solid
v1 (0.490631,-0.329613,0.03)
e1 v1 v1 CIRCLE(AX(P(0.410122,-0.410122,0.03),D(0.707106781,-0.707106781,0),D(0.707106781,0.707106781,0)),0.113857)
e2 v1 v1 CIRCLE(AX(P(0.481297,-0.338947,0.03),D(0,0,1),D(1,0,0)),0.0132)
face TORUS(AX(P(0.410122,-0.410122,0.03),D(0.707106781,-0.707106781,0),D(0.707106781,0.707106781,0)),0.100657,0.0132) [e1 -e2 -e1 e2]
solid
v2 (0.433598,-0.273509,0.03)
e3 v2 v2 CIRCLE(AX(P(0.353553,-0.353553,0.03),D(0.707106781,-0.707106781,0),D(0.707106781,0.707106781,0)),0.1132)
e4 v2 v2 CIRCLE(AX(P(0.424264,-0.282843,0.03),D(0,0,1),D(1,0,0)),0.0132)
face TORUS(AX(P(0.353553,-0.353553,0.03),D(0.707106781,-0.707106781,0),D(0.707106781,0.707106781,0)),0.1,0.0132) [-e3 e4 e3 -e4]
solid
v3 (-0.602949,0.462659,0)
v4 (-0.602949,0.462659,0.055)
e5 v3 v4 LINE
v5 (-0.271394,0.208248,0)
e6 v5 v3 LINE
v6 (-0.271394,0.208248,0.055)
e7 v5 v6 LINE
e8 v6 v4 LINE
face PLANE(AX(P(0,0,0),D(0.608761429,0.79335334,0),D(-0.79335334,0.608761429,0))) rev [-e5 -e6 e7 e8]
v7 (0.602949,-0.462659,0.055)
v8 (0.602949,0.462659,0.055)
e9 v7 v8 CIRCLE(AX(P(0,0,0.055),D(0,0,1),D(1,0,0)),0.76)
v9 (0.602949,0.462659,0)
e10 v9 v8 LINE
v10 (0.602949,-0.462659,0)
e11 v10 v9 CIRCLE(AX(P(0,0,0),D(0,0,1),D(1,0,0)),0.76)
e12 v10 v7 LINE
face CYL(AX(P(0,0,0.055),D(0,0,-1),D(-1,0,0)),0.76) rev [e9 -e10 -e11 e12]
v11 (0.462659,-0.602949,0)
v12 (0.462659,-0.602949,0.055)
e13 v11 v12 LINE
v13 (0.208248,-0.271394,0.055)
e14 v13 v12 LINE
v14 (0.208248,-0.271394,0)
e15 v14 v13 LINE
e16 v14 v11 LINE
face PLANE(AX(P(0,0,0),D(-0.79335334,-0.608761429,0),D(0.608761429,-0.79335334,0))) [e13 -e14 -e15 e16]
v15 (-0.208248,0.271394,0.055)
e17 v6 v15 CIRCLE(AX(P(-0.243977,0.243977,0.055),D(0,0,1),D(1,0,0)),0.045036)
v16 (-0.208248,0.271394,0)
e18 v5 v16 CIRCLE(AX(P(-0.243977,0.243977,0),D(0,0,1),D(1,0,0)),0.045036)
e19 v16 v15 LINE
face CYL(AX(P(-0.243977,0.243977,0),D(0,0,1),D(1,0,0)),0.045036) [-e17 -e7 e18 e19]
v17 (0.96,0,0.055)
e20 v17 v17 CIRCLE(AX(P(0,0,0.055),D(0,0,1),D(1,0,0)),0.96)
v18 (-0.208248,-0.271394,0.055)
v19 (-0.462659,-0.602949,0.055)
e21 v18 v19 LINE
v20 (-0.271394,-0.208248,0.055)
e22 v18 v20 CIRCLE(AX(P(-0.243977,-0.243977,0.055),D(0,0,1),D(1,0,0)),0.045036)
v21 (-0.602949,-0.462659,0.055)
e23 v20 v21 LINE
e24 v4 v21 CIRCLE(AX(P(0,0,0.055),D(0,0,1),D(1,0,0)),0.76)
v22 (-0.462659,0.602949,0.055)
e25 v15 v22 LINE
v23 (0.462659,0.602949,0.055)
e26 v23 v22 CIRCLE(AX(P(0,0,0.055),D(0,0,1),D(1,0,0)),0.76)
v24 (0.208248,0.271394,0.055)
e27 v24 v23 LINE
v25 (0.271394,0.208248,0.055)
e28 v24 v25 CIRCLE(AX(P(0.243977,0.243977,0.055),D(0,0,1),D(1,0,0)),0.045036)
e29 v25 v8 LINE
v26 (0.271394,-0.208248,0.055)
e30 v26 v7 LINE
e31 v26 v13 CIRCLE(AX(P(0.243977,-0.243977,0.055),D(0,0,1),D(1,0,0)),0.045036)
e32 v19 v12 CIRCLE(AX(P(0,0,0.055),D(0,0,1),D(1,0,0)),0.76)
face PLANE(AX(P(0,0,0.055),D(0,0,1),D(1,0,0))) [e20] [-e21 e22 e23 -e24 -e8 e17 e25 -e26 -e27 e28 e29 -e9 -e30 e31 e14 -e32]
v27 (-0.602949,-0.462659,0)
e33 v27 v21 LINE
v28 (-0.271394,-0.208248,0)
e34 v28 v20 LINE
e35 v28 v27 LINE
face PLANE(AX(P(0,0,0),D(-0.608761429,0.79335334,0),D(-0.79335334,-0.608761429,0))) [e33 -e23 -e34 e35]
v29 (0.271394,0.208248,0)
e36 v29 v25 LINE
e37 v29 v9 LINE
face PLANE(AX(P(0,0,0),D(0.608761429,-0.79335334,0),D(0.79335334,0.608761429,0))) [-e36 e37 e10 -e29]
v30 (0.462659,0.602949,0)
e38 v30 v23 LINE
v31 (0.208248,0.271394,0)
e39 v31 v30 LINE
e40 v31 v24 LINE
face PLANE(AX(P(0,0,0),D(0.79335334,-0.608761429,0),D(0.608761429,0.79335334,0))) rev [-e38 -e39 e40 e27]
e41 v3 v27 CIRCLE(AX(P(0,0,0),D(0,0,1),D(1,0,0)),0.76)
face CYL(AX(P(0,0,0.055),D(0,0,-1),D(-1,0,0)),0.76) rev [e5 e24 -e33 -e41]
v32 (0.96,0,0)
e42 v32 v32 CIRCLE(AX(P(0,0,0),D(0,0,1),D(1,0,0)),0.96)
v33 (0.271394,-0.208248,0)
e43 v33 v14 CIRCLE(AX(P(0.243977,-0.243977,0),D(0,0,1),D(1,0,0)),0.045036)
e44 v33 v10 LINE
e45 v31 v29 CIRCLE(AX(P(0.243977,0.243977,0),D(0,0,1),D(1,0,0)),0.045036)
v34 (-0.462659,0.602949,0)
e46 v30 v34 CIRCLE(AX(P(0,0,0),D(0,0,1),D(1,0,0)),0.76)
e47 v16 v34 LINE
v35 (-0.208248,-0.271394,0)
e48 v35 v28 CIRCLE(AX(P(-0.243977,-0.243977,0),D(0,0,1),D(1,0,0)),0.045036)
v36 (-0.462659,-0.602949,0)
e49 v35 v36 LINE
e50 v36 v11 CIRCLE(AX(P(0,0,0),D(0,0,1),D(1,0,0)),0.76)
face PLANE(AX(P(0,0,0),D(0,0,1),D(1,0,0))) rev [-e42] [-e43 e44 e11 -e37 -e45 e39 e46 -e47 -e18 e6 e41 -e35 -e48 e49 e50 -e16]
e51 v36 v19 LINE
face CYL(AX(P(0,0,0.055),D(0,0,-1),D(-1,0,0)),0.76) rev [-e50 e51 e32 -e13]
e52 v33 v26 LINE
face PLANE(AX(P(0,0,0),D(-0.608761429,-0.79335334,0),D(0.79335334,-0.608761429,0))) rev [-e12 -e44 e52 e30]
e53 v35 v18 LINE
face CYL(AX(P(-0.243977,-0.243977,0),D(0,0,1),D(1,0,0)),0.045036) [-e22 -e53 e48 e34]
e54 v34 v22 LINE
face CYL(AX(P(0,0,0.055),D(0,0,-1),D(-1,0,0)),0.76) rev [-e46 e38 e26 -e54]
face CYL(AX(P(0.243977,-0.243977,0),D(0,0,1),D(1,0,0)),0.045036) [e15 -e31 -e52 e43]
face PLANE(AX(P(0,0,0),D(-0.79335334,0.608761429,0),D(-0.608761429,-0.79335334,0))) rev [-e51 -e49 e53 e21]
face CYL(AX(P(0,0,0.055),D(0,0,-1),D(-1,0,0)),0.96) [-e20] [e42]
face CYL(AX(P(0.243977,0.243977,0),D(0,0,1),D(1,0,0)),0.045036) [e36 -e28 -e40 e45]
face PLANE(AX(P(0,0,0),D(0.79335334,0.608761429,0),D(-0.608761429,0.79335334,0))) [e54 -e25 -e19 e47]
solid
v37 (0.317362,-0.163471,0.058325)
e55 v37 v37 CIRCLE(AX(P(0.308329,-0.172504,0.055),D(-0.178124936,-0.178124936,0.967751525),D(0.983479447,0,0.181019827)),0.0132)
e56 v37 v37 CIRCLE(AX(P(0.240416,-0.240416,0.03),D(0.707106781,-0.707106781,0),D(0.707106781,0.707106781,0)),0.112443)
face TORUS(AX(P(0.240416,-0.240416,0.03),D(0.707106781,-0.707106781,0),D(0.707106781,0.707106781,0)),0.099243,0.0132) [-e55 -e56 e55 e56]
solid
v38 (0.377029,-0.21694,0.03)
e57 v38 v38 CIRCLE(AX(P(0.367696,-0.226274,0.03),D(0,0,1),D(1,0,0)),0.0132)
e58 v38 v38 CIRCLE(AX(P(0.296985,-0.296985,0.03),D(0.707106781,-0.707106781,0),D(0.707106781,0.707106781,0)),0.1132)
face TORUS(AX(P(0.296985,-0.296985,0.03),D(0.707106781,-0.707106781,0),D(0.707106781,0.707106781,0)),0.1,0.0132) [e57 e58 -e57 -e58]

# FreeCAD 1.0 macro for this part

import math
import FreeCAD as App
import Part
import Sketcher
Q = App.Units.Quantity

doc = App.newDocument("Part")
body = doc.addObject("PartDesign::Body", "Body")

# Sketch on XY plane
sketch1 = doc.addObject("Sketcher::SketchObject", "Sketch")
body.addObject(sketch1)
sketch1.AttachmentSupport = (doc.XY_Plane, [""])
sketch1.MapMode = "FlatFace"
sketch1.addGeometry(Part.Circle(App.Vector(0, 0, 0), App.Vector(0, 0, 1), 1), False)
sketch1.addGeometry(Part.Circle(App.Vector(0, 0, 0), App.Vector(0, 0, 1), 0.8), False)
sketch1.addConstraint(Sketcher.Constraint("Coincident", 0, 3, -1, 1))
sketch1.addConstraint(Sketcher.Constraint("Coincident", 1, 3, -1, 1))
sketch1.addConstraint(Sketcher.Constraint("Diameter", 0, 1.92))
sketch1.addConstraint(Sketcher.Constraint("Diameter", 1, 1.52))
pad1 = doc.addObject("PartDesign::Pad", "Pad")
body.addObject(pad1)
pad1.Profile = sketch1
pad1.Length = 0.055

# Sketch on XY plane
sketch2 = doc.addObject("Sketcher::SketchObject", "Sketch001")
body.addObject(sketch2)
sketch2.AttachmentSupport = (doc.XY_Plane, [""])
sketch2.MapMode = "FlatFace"
sketch2.addGeometry(Part.LineSegment(App.Vector(-0.208, 0.271, 0), App.Vector(-0.463, 0.603, 0)), False)
sketch2.addGeometry(Part.ArcOfCircle(Part.Circle(App.Vector(0, 0, 0), App.Vector(0, 0, 1), 0.76), math.radians(127.5), math.radians(142.5)), False)
sketch2.addGeometry(Part.LineSegment(App.Vector(-0.603, 0.463, 0), App.Vector(-0.271, 0.208, 0)), False)
sketch2.addGeometry(Part.ArcOfCircle(Part.Circle(App.Vector(-0.244, 0.244, 0), App.Vector(0, 0, 1), 0.045), math.radians(-128), math.radians(-45)), False)
sketch2.addGeometry(Part.ArcOfCircle(Part.Circle(App.Vector(-0.244, 0.244, 0), App.Vector(0, 0, 1), 0.045), math.radians(-45), math.radians(38)), False)
sketch2.addGeometry(Part.ArcOfCircle(Part.Circle(App.Vector(0.244, 0.244, 0), App.Vector(0, 0, 1), 0.045), math.radians(142), math.radians(225)), False)
sketch2.addGeometry(Part.ArcOfCircle(Part.Circle(App.Vector(0.244, 0.244, 0), App.Vector(0, 0, 1), 0.045), math.radians(-135), math.radians(-52)), False)
sketch2.addGeometry(Part.LineSegment(App.Vector(0.271, 0.208, 0), App.Vector(0.603, 0.463, 0)), False)
sketch2.addGeometry(Part.ArcOfCircle(Part.Circle(App.Vector(0, 0, 0), App.Vector(0, 0, 1), 0.76), math.radians(37.5), math.radians(52.5)), False)
sketch2.addGeometry(Part.LineSegment(App.Vector(0.463, 0.603, 0), App.Vector(0.208, 0.271, 0)), False)
sketch2.addGeometry(Part.ArcOfCircle(Part.Circle(App.Vector(0.244, -0.244, 0), App.Vector(0, 0, 1), 0.045), math.radians(52), math.radians(135)), False)
sketch2.addGeometry(Part.ArcOfCircle(Part.Circle(App.Vector(0.244, -0.244, 0), App.Vector(0, 0, 1), 0.045), math.radians(135), math.radians(218)), False)
sketch2.addGeometry(Part.LineSegment(App.Vector(0.208, -0.271, 0), App.Vector(0.463, -0.603, 0)), False)
sketch2.addGeometry(Part.ArcOfCircle(Part.Circle(App.Vector(0, 0, 0), App.Vector(0, 0, 1), 0.76), math.radians(-52.5), math.radians(-37.5)), False)
sketch2.addGeometry(Part.LineSegment(App.Vector(0.603, -0.463, 0), App.Vector(0.271, -0.208, 0)), False)
sketch2.addGeometry(Part.ArcOfCircle(Part.Circle(App.Vector(-0.244, -0.244, 0), App.Vector(0, 0, 1), 0.045), math.radians(-38), math.radians(45)), False)
sketch2.addGeometry(Part.ArcOfCircle(Part.Circle(App.Vector(-0.244, -0.244, 0), App.Vector(0, 0, 1), 0.045), math.radians(45), math.radians(128)), False)
sketch2.addGeometry(Part.LineSegment(App.Vector(-0.271, -0.208, 0), App.Vector(-0.603, -0.463, 0)), False)
sketch2.addGeometry(Part.ArcOfCircle(Part.Circle(App.Vector(0, 0, 0), App.Vector(0, 0, 1), 0.76), math.radians(-142.5), math.radians(-127.5)), False)
sketch2.addGeometry(Part.LineSegment(App.Vector(-0.463, -0.603, 0), App.Vector(-0.208, -0.271, 0)), False)
sketch2.addConstraint(Sketcher.Constraint("Coincident", 0, 2, 1, 1))
sketch2.addConstraint(Sketcher.Constraint("Coincident", 1, 2, 2, 1))
sketch2.addConstraint(Sketcher.Constraint("Tangent", 2, 2, 3, 1))
sketch2.addConstraint(Sketcher.Constraint("Tangent", 3, 2, 4, 1))
sketch2.addConstraint(Sketcher.Constraint("Tangent", 4, 2, 0, 1))
sketch2.addConstraint(Sketcher.Constraint("Tangent", 5, 2, 6, 1))
sketch2.addConstraint(Sketcher.Constraint("Tangent", 6, 2, 7, 1))
sketch2.addConstraint(Sketcher.Constraint("Coincident", 7, 2, 8, 1))
sketch2.addConstraint(Sketcher.Constraint("Coincident", 8, 2, 9, 1))
sketch2.addConstraint(Sketcher.Constraint("Tangent", 9, 2, 5, 1))
sketch2.addConstraint(Sketcher.Constraint("Tangent", 10, 2, 11, 1))
sketch2.addConstraint(Sketcher.Constraint("Tangent", 11, 2, 12, 1))
sketch2.addConstraint(Sketcher.Constraint("Coincident", 12, 2, 13, 1))
sketch2.addConstraint(Sketcher.Constraint("Coincident", 13, 2, 14, 1))
sketch2.addConstraint(Sketcher.Constraint("Tangent", 14, 2, 10, 1))
sketch2.addConstraint(Sketcher.Constraint("Tangent", 15, 2, 16, 1))
sketch2.addConstraint(Sketcher.Constraint("Tangent", 16, 2, 17, 1))
sketch2.addConstraint(Sketcher.Constraint("Coincident", 17, 2, 18, 1))
sketch2.addConstraint(Sketcher.Constraint("Coincident", 18, 2, 19, 1))
sketch2.addConstraint(Sketcher.Constraint("Tangent", 19, 2, 15, 1))
sketch2.addConstraint(Sketcher.Constraint("Coincident", 1, 3, -1, 1))
sketch2.addConstraint(Sketcher.Constraint("Coincident", 8, 3, -1, 1))
sketch2.addConstraint(Sketcher.Constraint("Coincident", 13, 3, -1, 1))
sketch2.addConstraint(Sketcher.Constraint("Coincident", 18, 3, -1, 1))
sketch2.addConstraint(Sketcher.Constraint("Equal", 3, 4))
sketch2.addConstraint(Sketcher.Constraint("Equal", 4, 5))
sketch2.addConstraint(Sketcher.Constraint("Equal", 5, 6))
sketch2.addConstraint(Sketcher.Constraint("Equal", 1, 8))
sketch2.addConstraint(Sketcher.Constraint("Equal", 6, 10))
sketch2.addConstraint(Sketcher.Constraint("Equal", 10, 11))
sketch2.addConstraint(Sketcher.Constraint("Equal", 8, 13))
sketch2.addConstraint(Sketcher.Constraint("Equal", 11, 15))
sketch2.addConstraint(Sketcher.Constraint("Equal", 15, 16))
sketch2.addConstraint(Sketcher.Constraint("Equal", 13, 18))
sketch2.addConstraint(Sketcher.Constraint("Symmetric", 3, 3, 10, 3, -1, 1))
sketch2.addConstraint(Sketcher.Constraint("Symmetric", 5, 3, 15, 3, -1, 1))
sketch2.addConstraint(Sketcher.Constraint("Symmetric", 3, 3, 5, 3, -2))
sketch2.addConstraint(Sketcher.Constraint("Perpendicular", 0, 7))
sketch2.addConstraint(Sketcher.Constraint("Perpendicular", 2, 9))
sketch2.addConstraint(Sketcher.Constraint("Perpendicular", 7, 12))
sketch2.addConstraint(Sketcher.Constraint("Perpendicular", 9, 14))
sketch2.addConstraint(Sketcher.Constraint("Perpendicular", 12, 17))
sketch2.addConstraint(Sketcher.Constraint("Perpendicular", 14, 19))
sketch2.addConstraint(Sketcher.Constraint("Horizontal", 3, 2, 5, 2))
sketch2.addConstraint(Sketcher.Constraint("Horizontal", 2, 2, 6, 2))
sketch2.addConstraint(Sketcher.Constraint("Horizontal", 10, 2, 15, 2))
sketch2.addConstraint(Sketcher.Constraint("Vertical", 5, 2, 10, 2))
sketch2.addConstraint(Sketcher.Constraint("Equal", 0, 2))
sketch2.addConstraint(Sketcher.Constraint("Radius", 1, 0.76))
sketch2.addConstraint(Sketcher.Constraint("Angle", 0, Q("127.5 deg")))
sketch2.addConstraint(Sketcher.Constraint("Radius", 3, 0.045036))
sketch2.addConstraint(Sketcher.Constraint("DistanceY", 6, 2, 8, 2, 0.394701))
sketch2.addConstraint(Sketcher.Constraint("DistanceX", 2, 2, 3, 2, 0.059262))
pad2 = doc.addObject("PartDesign::Pad", "Pad001")
body.addObject(pad2)
pad2.Profile = sketch2
pad2.Length = 0.055
body2 = doc.addObject("PartDesign::Body", "Body001")

# Sketch on XY plane
sketch3 = doc.addObject("Sketcher::SketchObject", "Sketch002")
body2.addObject(sketch3)
sketch3.AttachmentSupport = (doc.getObject("XY_Plane001"), [""])
sketch3.MapMode = "FlatFace"
sketch3.AttachmentOffset = App.Placement(App.Vector(0, 0, 0.03), App.Rotation())
sketch3.addGeometry(Part.Circle(App.Vector(0.424, -0.283, 0), App.Vector(0, 0, 1), 0.013), False)
sketch3.addConstraint(Sketcher.Constraint("Diameter", 0, 0.0264))
sketch3.addConstraint(Sketcher.Constraint("DistanceX", -1, 1, 0, 3, 0.424264))
sketch3.addConstraint(Sketcher.Constraint("DistanceY", 0, 3, -1, 1, 0.282843))

# Sketch on an angled plane
sketch4 = doc.addObject("Sketcher::SketchObject", "Sketch003")
body2.addObject(sketch4)
sketch4.Placement = App.Placement(App.Vector(0.353553, -0.353553, 0), App.Rotation(App.Vector(0.707106781, 0.707106781, 0), App.Vector(0, 0, 0.999999999), App.Vector(0.707106781, -0.707106781, 0), "ZXY"))
sketch4.addGeometry(Part.Circle(App.Vector(0, 0.03, 0), App.Vector(0, 0, 1), 0.1), False)
sketch4.addConstraint(Sketcher.Constraint("PointOnObject", 0, 3, -2))
sketch4.addConstraint(Sketcher.Constraint("Diameter", 0, 0.2))
sketch4.addConstraint(Sketcher.Constraint("DistanceY", -1, 1, 0, 3, 0.03))
doc.recompute()

additivepipe = doc.addObject("PartDesign::AdditivePipe", "AdditivePipe")
body2.addObject(additivepipe)
additivepipe.Profile = sketch3
additivepipe.Spine = (sketch4, ["Edge1"])
body3 = doc.addObject("PartDesign::Body", "Body002")

# Sketch on an angled plane
sketch5 = doc.addObject("Sketcher::SketchObject", "Sketch004")
body3.addObject(sketch5)
sketch5.Placement = App.Placement(App.Vector(0.308329, -0.172504, 0.055), App.Rotation(App.Vector(0.98400788, -0.032244145, 0.175182214), App.Vector(0, 0.983479447, 0.181019827), App.Vector(-0.178124936, -0.178124936, 0.967751525), "ZXY"))
sketch5.addGeometry(Part.Circle(App.Vector(0, 0, 0), App.Vector(0, 0, 1), 0.013), False)
sketch5.addConstraint(Sketcher.Constraint("Coincident", 0, 3, -1, 1))
sketch5.addConstraint(Sketcher.Constraint("Diameter", 0, 0.0264))

# Sketch on an angled plane
sketch6 = doc.addObject("Sketcher::SketchObject", "Sketch005")
body3.addObject(sketch6)
sketch6.Placement = App.Placement(App.Vector(0.240416, -0.240416, 0), App.Rotation(App.Vector(0.707106781, 0.707106781, 0), App.Vector(0, 0, 0.999999999), App.Vector(0.707106781, -0.707106781, 0), "ZXY"))
sketch6.addGeometry(Part.Circle(App.Vector(0, 0.03, 0), App.Vector(0, 0, 1), 0.1), False)
sketch6.addConstraint(Sketcher.Constraint("PointOnObject", 0, 3, -2))
sketch6.addConstraint(Sketcher.Constraint("Diameter", 0, 0.2))
sketch6.addConstraint(Sketcher.Constraint("DistanceY", -1, 1, 0, 3, 0.03))
doc.recompute()

additivepipe2 = doc.addObject("PartDesign::AdditivePipe", "AdditivePipe001")
body3.addObject(additivepipe2)
additivepipe2.Profile = sketch5
additivepipe2.Spine = (sketch6, ["Edge1"])
body4 = doc.addObject("PartDesign::Body", "Body003")

# Sketch on XY plane
sketch7 = doc.addObject("Sketcher::SketchObject", "Sketch006")
body4.addObject(sketch7)
sketch7.AttachmentSupport = (doc.getObject("XY_Plane003"), [""])
sketch7.MapMode = "FlatFace"
sketch7.AttachmentOffset = App.Placement(App.Vector(0, 0, 0.03), App.Rotation())
sketch7.addGeometry(Part.Circle(App.Vector(0.368, -0.226, 0), App.Vector(0, 0, 1), 0.013), False)
sketch7.addConstraint(Sketcher.Constraint("Diameter", 0, 0.0264))
sketch7.addConstraint(Sketcher.Constraint("DistanceX", -1, 1, 0, 3, 0.367696))
sketch7.addConstraint(Sketcher.Constraint("DistanceY", 0, 3, -1, 1, 0.226274))

# Sketch on an angled plane
sketch8 = doc.addObject("Sketcher::SketchObject", "Sketch007")
body4.addObject(sketch8)
sketch8.Placement = App.Placement(App.Vector(0.296985, -0.296985, 0), App.Rotation(App.Vector(-0.707106781, -0.707106781, 0), App.Vector(0, 0, 0.999999999), App.Vector(-0.707106781, 0.707106781, 0), "ZXY"))
sketch8.addGeometry(Part.Circle(App.Vector(0, 0.03, 0), App.Vector(0, 0, 1), 0.1), False)
sketch8.addConstraint(Sketcher.Constraint("PointOnObject", 0, 3, -2))
sketch8.addConstraint(Sketcher.Constraint("Diameter", 0, 0.2))
sketch8.addConstraint(Sketcher.Constraint("DistanceY", -1, 1, 0, 3, 0.03))
doc.recompute()

additivepipe3 = doc.addObject("PartDesign::AdditivePipe", "AdditivePipe002")
body4.addObject(additivepipe3)
additivepipe3.Profile = sketch7
additivepipe3.Spine = (sketch8, ["Edge1"])
body5 = doc.addObject("PartDesign::Body", "Body004")

# Sketch on XY plane
sketch9 = doc.addObject("Sketcher::SketchObject", "Sketch008")
body5.addObject(sketch9)
sketch9.AttachmentSupport = (doc.getObject("XY_Plane004"), [""])
sketch9.MapMode = "FlatFace"
sketch9.AttachmentOffset = App.Placement(App.Vector(0, 0, 0.03), App.Rotation())
sketch9.addGeometry(Part.Circle(App.Vector(0.481, -0.339, 0), App.Vector(0, 0, 1), 0.013), False)
sketch9.addConstraint(Sketcher.Constraint("Diameter", 0, 0.0264))
sketch9.addConstraint(Sketcher.Constraint("DistanceX", -1, 1, 0, 3, 0.481297))
sketch9.addConstraint(Sketcher.Constraint("DistanceY", 0, 3, -1, 1, 0.338947))

# Sketch on an angled plane
sketch10 = doc.addObject("Sketcher::SketchObject", "Sketch009")
body5.addObject(sketch10)
sketch10.Placement = App.Placement(App.Vector(0.410122, -0.410122, 0), App.Rotation(App.Vector(-0.707106781, -0.707106781, 0), App.Vector(0, 0, 0.999999999), App.Vector(-0.707106781, 0.707106781, 0), "ZXY"))
sketch10.addGeometry(Part.Circle(App.Vector(0, 0.03, 0), App.Vector(0, 0, 1), 0.1), False)
sketch10.addConstraint(Sketcher.Constraint("PointOnObject", 0, 3, -2))
sketch10.addConstraint(Sketcher.Constraint("DistanceY", -1, 1, 0, 3, 0.03))
sketch10.addConstraint(Sketcher.Constraint("Diameter", 0, 0.201314))
doc.recompute()

additivepipe4 = doc.addObject("PartDesign::AdditivePipe", "AdditivePipe003")
body5.addObject(additivepipe4)
additivepipe4.Profile = sketch9
additivepipe4.Spine = (sketch10, ["Edge1"])

doc.recompute()
